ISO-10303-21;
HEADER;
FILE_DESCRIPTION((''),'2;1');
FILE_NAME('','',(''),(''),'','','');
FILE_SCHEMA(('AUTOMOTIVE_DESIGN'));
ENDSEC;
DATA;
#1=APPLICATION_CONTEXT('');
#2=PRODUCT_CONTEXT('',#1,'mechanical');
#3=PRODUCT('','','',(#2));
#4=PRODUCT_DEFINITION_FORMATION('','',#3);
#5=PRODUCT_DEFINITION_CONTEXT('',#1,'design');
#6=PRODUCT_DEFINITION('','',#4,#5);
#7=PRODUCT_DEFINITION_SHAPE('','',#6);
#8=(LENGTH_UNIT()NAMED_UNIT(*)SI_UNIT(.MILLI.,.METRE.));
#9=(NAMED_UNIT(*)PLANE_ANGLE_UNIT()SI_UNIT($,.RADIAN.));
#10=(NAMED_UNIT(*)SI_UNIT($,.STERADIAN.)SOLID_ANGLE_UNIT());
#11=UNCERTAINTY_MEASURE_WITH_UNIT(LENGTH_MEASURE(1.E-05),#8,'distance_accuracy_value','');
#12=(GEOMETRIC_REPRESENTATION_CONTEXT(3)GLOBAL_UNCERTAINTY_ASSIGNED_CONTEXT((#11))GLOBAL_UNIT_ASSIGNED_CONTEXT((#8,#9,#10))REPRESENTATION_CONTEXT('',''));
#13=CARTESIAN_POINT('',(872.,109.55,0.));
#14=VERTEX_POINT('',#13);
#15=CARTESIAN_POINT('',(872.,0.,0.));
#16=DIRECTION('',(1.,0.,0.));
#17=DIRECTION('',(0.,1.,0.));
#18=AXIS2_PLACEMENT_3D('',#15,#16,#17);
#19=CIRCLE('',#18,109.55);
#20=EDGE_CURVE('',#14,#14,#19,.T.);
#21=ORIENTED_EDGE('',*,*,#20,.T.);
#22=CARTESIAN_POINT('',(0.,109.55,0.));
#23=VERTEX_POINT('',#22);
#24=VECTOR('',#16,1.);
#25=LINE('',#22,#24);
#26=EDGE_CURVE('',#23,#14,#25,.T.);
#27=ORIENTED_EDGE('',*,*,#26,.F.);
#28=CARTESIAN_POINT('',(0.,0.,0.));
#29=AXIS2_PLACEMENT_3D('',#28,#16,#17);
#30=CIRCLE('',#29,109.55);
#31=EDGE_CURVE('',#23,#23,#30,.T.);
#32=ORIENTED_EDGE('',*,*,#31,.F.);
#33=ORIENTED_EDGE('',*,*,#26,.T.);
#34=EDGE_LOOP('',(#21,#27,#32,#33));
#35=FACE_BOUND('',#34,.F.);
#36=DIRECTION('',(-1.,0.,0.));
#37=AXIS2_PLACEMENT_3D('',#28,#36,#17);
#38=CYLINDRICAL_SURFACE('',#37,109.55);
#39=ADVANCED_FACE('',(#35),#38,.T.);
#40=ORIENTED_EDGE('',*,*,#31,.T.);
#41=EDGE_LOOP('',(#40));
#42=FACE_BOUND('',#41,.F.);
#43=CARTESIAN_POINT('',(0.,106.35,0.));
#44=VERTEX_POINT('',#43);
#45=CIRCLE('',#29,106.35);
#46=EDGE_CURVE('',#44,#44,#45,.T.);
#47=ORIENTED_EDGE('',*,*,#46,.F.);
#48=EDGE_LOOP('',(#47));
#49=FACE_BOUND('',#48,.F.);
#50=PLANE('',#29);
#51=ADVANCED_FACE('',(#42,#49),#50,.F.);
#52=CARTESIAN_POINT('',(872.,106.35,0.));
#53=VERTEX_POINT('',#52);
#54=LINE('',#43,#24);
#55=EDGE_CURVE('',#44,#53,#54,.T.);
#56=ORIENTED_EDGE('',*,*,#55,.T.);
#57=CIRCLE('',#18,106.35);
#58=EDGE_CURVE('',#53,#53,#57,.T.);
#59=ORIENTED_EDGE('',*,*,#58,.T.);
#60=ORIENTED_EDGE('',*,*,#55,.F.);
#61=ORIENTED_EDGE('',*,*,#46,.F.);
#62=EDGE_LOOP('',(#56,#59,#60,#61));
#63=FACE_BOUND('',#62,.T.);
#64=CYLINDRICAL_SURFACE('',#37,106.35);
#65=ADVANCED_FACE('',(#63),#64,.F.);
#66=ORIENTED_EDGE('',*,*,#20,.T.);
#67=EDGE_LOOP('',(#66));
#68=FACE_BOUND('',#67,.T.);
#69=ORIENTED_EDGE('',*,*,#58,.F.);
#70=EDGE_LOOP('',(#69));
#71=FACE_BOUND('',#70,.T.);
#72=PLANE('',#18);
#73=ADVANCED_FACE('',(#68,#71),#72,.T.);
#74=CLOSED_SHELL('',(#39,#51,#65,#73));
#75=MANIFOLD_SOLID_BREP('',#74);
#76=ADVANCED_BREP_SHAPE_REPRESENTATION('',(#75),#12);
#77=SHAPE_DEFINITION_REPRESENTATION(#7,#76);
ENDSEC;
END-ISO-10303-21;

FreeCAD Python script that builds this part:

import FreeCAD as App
import Part
import Sketcher
from FreeCAD import Vector

doc = App.newDocument("Part")
body = doc.addObject("PartDesign::Body", "Body")

# Sketch on YZ plane
sketch1 = doc.addObject("Sketcher::SketchObject", "Sketch")
body.addObject(sketch1)
sketch1.AttachmentSupport = (doc.YZ_Plane, [""])
sketch1.MapMode = "FlatFace"
sketch1.addGeometry([
    Part.Circle(Vector(0, 0, 0), Vector(0, 0, 1), 109.55),
    Part.Circle(Vector(0, 0, 0), Vector(0, 0, 1), 106.35),
], False)
sketch1.addConstraint([
    Sketcher.Constraint("Coincident", 0, 3, -1, 1),
    Sketcher.Constraint("Coincident", 1, 3, -1, 1),
    Sketcher.Constraint("Diameter", 0, 219.1),
    Sketcher.Constraint("Diameter", 1, 212.7),
])
pad1 = doc.addObject("PartDesign::Pad", "Pad")
body.addObject(pad1)
pad1.Profile = sketch1
pad1.Length = 872

doc.recompute()
